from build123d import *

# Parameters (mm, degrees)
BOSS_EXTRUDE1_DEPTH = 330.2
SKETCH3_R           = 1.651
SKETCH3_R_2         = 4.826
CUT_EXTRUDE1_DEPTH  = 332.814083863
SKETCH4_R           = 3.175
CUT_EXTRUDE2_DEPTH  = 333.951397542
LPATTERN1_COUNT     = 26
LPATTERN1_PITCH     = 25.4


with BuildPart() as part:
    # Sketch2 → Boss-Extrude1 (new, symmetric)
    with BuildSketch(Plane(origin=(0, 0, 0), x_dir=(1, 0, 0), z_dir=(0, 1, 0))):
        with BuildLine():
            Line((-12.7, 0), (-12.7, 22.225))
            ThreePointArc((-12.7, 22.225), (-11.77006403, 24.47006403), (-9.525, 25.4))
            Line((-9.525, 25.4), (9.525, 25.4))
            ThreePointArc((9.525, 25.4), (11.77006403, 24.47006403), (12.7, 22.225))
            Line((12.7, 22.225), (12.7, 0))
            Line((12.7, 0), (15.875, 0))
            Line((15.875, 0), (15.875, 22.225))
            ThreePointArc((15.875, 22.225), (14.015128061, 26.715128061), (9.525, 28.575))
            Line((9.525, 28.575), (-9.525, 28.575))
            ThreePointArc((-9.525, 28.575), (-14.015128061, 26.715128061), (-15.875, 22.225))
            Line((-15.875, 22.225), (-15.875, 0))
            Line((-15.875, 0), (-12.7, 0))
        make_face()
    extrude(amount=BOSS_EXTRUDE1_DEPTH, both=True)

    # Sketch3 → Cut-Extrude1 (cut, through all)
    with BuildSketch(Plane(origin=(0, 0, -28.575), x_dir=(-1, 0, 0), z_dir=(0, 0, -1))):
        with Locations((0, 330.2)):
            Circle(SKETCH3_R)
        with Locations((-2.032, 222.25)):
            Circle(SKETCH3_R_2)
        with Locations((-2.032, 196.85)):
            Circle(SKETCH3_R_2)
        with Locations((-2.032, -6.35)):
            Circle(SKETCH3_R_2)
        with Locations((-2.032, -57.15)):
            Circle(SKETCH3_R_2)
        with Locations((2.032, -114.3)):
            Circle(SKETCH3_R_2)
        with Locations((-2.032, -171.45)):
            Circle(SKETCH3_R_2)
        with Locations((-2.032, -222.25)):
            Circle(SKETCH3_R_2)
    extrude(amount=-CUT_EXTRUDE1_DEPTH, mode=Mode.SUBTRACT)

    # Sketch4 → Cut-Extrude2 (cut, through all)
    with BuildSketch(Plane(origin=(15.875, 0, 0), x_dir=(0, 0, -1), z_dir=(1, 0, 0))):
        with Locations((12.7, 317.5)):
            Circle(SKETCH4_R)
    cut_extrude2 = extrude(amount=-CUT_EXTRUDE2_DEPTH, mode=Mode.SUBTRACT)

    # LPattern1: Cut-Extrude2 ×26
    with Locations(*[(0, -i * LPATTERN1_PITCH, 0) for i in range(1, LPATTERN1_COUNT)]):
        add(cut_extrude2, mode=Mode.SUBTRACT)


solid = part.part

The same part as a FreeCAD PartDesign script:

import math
import FreeCAD as App
import Part
import Sketcher
from FreeCAD import Vector
Q = App.Units.Quantity

doc = App.newDocument("Part")
body = doc.addObject("PartDesign::Body", "Body")

# Sketch on XZ plane
sketch1 = body.newObject("Sketcher::SketchObject", "Sketch")
sketch1.AttachmentSupport = (doc.getObject("XZ_Plane"), [""])
sketch1.MapMode = "FlatFace"
sketch1.addGeometry(Part.LineSegment(Vector(-12.7, 0, 0), Vector(-12.7, -22.225, 0)), False)
sketch1.addGeometry(Part.ArcOfCircle(Part.Circle(Vector(-9.525, -22.225, 0), Vector(0, 0, 1), 3.175), math.radians(-180), math.radians(-90)), False)
sketch1.addGeometry(Part.LineSegment(Vector(-9.525, -25.4, 0), Vector(9.525, -25.4, 0)), False)
sketch1.addGeometry(Part.ArcOfCircle(Part.Circle(Vector(9.525, -22.225, 0), Vector(0, 0, 1), 3.175), math.radians(-90), math.radians(0)), False)
sketch1.addGeometry(Part.LineSegment(Vector(12.7, -22.225, 0), Vector(12.7, 0, 0)), False)
sketch1.addGeometry(Part.LineSegment(Vector(12.7, 0, 0), Vector(15.875, 0, 0)), False)
sketch1.addGeometry(Part.LineSegment(Vector(15.875, 0, 0), Vector(15.875, -22.225, 0)), False)
sketch1.addGeometry(Part.ArcOfCircle(Part.Circle(Vector(9.525, -22.225, 0), Vector(0, 0, 1), 6.35), math.radians(-90), math.radians(0)), False)
sketch1.addGeometry(Part.LineSegment(Vector(9.525, -28.575, 0), Vector(-9.525, -28.575, 0)), False)
sketch1.addGeometry(Part.ArcOfCircle(Part.Circle(Vector(-9.525, -22.225, 0), Vector(0, 0, 1), 6.35), math.radians(180), math.radians(270)), False)
sketch1.addGeometry(Part.LineSegment(Vector(-15.875, -22.225, 0), Vector(-15.875, 0, 0)), False)
sketch1.addGeometry(Part.LineSegment(Vector(-15.875, 0, 0), Vector(-12.7, 0, 0)), False)
sketch1.addConstraint(Sketcher.Constraint("Tangent", 0, 2, 1, 1))
sketch1.addConstraint(Sketcher.Constraint("Tangent", 1, 2, 2, 1))
sketch1.addConstraint(Sketcher.Constraint("Tangent", 2, 2, 3, 1))
sketch1.addConstraint(Sketcher.Constraint("Tangent", 3, 2, 4, 1))
sketch1.addConstraint(Sketcher.Constraint("Coincident", 4, 2, 5, 1))
sketch1.addConstraint(Sketcher.Constraint("Coincident", 5, 2, 6, 1))
sketch1.addConstraint(Sketcher.Constraint("Tangent", 6, 2, 7, 2))
sketch1.addConstraint(Sketcher.Constraint("Tangent", 7, 1, 8, 1))
sketch1.addConstraint(Sketcher.Constraint("Tangent", 8, 2, 9, 2))
sketch1.addConstraint(Sketcher.Constraint("Tangent", 9, 1, 10, 1))
sketch1.addConstraint(Sketcher.Constraint("Coincident", 10, 2, 11, 1))
sketch1.addConstraint(Sketcher.Constraint("Coincident", 11, 2, 0, 1))
sketch1.addConstraint(Sketcher.Constraint("Vertical", 0))
sketch1.addConstraint(Sketcher.Constraint("Horizontal", 2))
sketch1.addConstraint(Sketcher.Constraint("Vertical", 4))
sketch1.addConstraint(Sketcher.Constraint("Horizontal", 5))
sketch1.addConstraint(Sketcher.Constraint("Vertical", 6))
sketch1.addConstraint(Sketcher.Constraint("Horizontal", 8))
sketch1.addConstraint(Sketcher.Constraint("Vertical", 10))
sketch1.addConstraint(Sketcher.Constraint("Horizontal", 11))
sketch1.addConstraint(Sketcher.Constraint("Coincident", 7, 3, 3, 3))
sketch1.addConstraint(Sketcher.Constraint("Coincident", 9, 3, 1, 3))
sketch1.addConstraint(Sketcher.Constraint("Equal", 1, 3))
sketch1.addConstraint(Sketcher.Constraint("Symmetric", 5, 2, 10, 2, -1, 1))
sketch1.addConstraint(Sketcher.Constraint("PointOnObject", 4, 2, -1))
sketch1.addConstraint(Sketcher.Constraint("Radius", 7, Q("0.25 in")))
sketch1.addConstraint(Sketcher.Constraint("DistanceY", 1, 2, -1, 1, Q("1 in")))
sketch1.addConstraint(Sketcher.Constraint("Radius", 1, Q("0.125 in")))
sketch1.addConstraint(Sketcher.Constraint("DistanceX", 2, 1, 2, 2, Q("0.75 in")))
pad1 = body.newObject("PartDesign::Pad", "Pad")
pad1.Profile = sketch1
pad1.Length = Q("26 in")
pad1.Midplane = True

# Sketch on XY plane
sketch2 = body.newObject("Sketcher::SketchObject", "Sketch001")
sketch2.AttachmentSupport = (doc.getObject("XY_Plane"), [""])
sketch2.MapMode = "FlatFace"
sketch2.AttachmentOffset = App.Placement(Vector(0, 0, -1.125 * 25.4), App.Rotation())
sketch2.addGeometry(Part.Circle(Vector(0, 330.2, 0), Vector(0, 0, 1), 1.651), False)
sketch2.addGeometry(Part.Circle(Vector(2.032, 222.25, 0), Vector(0, 0, 1), 4.826), False)
sketch2.addGeometry(Part.Circle(Vector(2.032, 196.85, 0), Vector(0, 0, 1), 4.826), False)
sketch2.addGeometry(Part.Circle(Vector(2.032, -6.35, 0), Vector(0, 0, 1), 4.826), False)
sketch2.addGeometry(Part.Circle(Vector(2.032, -57.15, 0), Vector(0, 0, 1), 4.826), False)
sketch2.addGeometry(Part.Circle(Vector(-2.032, -114.3, 0), Vector(0, 0, 1), 4.826), False)
sketch2.addGeometry(Part.Circle(Vector(2.032, -171.45, 0), Vector(0, 0, 1), 4.826), False)
sketch2.addGeometry(Part.Circle(Vector(2.032, -222.25, 0), Vector(0, 0, 1), 4.826), False)
sketch2.addConstraint(Sketcher.Constraint("Equal", 1, 2))
sketch2.addConstraint(Sketcher.Constraint("Equal", 2, 3))
sketch2.addConstraint(Sketcher.Constraint("Equal", 3, 4))
sketch2.addConstraint(Sketcher.Constraint("Equal", 4, 5))
sketch2.addConstraint(Sketcher.Constraint("Equal", 5, 6))
sketch2.addConstraint(Sketcher.Constraint("Equal", 6, 7))
sketch2.addConstraint(Sketcher.Constraint("Symmetric", 1, 3, 7, 3, -1))
sketch2.addConstraint(Sketcher.Constraint("PointOnObject", 0, 3, -2))
sketch2.addConstraint(Sketcher.Constraint("Vertical", 1, 3, 2, 3))
sketch2.addConstraint(Sketcher.Constraint("Vertical", 2, 3, 3, 3))
sketch2.addConstraint(Sketcher.Constraint("Vertical", 3, 3, 4, 3))
sketch2.addConstraint(Sketcher.Constraint("Vertical", 4, 3, 6, 3))
sketch2.addConstraint(Sketcher.Constraint("Diameter", 0, Q("0.13 in")))
sketch2.addConstraint(Sketcher.Constraint("Diameter", 1, Q("0.38 in")))
sketch2.addConstraint(Sketcher.Constraint("DistanceY", -1, 1, 0, 3, Q("13 in")))
sketch2.addConstraint(Sketcher.Constraint("DistanceY", 2, 3, 1, 3, Q("1 in")))
sketch2.addConstraint(Sketcher.Constraint("DistanceY", 3, 3, 2, 3, Q("8 in")))
sketch2.addConstraint(Sketcher.Constraint("DistanceY", 4, 3, 3, 3, Q("2 in")))
sketch2.addConstraint(Sketcher.Constraint("DistanceY", 7, 3, 6, 3, Q("2 in")))
sketch2.addConstraint(Sketcher.Constraint("DistanceY", 5, 3, -1, 1, Q("4.5 in")))
sketch2.addConstraint(Sketcher.Constraint("DistanceY", 6, 3, 4, 3, Q("4.5 in")))
sketch2.addConstraint(Sketcher.Constraint("DistanceX", -1, 1, 1, 3, Q("0.08 in")))
sketch2.addConstraint(Sketcher.Constraint("DistanceX", 5, 3, -1, 1, Q("0.08 in")))
pocket1 = body.newObject("PartDesign::Pocket", "Pocket")
pocket1.Profile = sketch2
pocket1.Type = "ThroughAll"
pocket1.Reversed = True

# Sketch on YZ plane
sketch3 = body.newObject("Sketcher::SketchObject", "Sketch002")
sketch3.AttachmentSupport = (doc.getObject("YZ_Plane"), [""])
sketch3.MapMode = "FlatFace"
sketch3.AttachmentOffset = App.Placement(Vector(0, 0, 0.625 * 25.4), App.Rotation())
sketch3.addGeometry(Part.Circle(Vector(317.5, -12.7, 0), Vector(0, 0, 1), 3.175), False)
sketch3.addConstraint(Sketcher.Constraint("Diameter", 0, Q("0.25 in")))
sketch3.addConstraint(Sketcher.Constraint("DistanceX", -1, 1, 0, 3, Q("12.5 in")))
sketch3.addConstraint(Sketcher.Constraint("DistanceY", 0, 3, -1, 1, Q("0.5 in")))
pocket2 = body.newObject("PartDesign::Pocket", "Pocket001")
pocket2.Profile = sketch3
pocket2.Type = "ThroughAll"
doc.recompute()

linearpattern = body.newObject("PartDesign::LinearPattern", "LinearPattern")
linearpattern.Originals = [pocket2]
linearpattern.Direction = (doc.getObject("Y_Axis"), [""])
linearpattern.Mode = "offset"
linearpattern.Offset = Q("1 in")
linearpattern.Occurrences = 26
linearpattern.Reversed = True
body.Tip = linearpattern

doc.recompute()
